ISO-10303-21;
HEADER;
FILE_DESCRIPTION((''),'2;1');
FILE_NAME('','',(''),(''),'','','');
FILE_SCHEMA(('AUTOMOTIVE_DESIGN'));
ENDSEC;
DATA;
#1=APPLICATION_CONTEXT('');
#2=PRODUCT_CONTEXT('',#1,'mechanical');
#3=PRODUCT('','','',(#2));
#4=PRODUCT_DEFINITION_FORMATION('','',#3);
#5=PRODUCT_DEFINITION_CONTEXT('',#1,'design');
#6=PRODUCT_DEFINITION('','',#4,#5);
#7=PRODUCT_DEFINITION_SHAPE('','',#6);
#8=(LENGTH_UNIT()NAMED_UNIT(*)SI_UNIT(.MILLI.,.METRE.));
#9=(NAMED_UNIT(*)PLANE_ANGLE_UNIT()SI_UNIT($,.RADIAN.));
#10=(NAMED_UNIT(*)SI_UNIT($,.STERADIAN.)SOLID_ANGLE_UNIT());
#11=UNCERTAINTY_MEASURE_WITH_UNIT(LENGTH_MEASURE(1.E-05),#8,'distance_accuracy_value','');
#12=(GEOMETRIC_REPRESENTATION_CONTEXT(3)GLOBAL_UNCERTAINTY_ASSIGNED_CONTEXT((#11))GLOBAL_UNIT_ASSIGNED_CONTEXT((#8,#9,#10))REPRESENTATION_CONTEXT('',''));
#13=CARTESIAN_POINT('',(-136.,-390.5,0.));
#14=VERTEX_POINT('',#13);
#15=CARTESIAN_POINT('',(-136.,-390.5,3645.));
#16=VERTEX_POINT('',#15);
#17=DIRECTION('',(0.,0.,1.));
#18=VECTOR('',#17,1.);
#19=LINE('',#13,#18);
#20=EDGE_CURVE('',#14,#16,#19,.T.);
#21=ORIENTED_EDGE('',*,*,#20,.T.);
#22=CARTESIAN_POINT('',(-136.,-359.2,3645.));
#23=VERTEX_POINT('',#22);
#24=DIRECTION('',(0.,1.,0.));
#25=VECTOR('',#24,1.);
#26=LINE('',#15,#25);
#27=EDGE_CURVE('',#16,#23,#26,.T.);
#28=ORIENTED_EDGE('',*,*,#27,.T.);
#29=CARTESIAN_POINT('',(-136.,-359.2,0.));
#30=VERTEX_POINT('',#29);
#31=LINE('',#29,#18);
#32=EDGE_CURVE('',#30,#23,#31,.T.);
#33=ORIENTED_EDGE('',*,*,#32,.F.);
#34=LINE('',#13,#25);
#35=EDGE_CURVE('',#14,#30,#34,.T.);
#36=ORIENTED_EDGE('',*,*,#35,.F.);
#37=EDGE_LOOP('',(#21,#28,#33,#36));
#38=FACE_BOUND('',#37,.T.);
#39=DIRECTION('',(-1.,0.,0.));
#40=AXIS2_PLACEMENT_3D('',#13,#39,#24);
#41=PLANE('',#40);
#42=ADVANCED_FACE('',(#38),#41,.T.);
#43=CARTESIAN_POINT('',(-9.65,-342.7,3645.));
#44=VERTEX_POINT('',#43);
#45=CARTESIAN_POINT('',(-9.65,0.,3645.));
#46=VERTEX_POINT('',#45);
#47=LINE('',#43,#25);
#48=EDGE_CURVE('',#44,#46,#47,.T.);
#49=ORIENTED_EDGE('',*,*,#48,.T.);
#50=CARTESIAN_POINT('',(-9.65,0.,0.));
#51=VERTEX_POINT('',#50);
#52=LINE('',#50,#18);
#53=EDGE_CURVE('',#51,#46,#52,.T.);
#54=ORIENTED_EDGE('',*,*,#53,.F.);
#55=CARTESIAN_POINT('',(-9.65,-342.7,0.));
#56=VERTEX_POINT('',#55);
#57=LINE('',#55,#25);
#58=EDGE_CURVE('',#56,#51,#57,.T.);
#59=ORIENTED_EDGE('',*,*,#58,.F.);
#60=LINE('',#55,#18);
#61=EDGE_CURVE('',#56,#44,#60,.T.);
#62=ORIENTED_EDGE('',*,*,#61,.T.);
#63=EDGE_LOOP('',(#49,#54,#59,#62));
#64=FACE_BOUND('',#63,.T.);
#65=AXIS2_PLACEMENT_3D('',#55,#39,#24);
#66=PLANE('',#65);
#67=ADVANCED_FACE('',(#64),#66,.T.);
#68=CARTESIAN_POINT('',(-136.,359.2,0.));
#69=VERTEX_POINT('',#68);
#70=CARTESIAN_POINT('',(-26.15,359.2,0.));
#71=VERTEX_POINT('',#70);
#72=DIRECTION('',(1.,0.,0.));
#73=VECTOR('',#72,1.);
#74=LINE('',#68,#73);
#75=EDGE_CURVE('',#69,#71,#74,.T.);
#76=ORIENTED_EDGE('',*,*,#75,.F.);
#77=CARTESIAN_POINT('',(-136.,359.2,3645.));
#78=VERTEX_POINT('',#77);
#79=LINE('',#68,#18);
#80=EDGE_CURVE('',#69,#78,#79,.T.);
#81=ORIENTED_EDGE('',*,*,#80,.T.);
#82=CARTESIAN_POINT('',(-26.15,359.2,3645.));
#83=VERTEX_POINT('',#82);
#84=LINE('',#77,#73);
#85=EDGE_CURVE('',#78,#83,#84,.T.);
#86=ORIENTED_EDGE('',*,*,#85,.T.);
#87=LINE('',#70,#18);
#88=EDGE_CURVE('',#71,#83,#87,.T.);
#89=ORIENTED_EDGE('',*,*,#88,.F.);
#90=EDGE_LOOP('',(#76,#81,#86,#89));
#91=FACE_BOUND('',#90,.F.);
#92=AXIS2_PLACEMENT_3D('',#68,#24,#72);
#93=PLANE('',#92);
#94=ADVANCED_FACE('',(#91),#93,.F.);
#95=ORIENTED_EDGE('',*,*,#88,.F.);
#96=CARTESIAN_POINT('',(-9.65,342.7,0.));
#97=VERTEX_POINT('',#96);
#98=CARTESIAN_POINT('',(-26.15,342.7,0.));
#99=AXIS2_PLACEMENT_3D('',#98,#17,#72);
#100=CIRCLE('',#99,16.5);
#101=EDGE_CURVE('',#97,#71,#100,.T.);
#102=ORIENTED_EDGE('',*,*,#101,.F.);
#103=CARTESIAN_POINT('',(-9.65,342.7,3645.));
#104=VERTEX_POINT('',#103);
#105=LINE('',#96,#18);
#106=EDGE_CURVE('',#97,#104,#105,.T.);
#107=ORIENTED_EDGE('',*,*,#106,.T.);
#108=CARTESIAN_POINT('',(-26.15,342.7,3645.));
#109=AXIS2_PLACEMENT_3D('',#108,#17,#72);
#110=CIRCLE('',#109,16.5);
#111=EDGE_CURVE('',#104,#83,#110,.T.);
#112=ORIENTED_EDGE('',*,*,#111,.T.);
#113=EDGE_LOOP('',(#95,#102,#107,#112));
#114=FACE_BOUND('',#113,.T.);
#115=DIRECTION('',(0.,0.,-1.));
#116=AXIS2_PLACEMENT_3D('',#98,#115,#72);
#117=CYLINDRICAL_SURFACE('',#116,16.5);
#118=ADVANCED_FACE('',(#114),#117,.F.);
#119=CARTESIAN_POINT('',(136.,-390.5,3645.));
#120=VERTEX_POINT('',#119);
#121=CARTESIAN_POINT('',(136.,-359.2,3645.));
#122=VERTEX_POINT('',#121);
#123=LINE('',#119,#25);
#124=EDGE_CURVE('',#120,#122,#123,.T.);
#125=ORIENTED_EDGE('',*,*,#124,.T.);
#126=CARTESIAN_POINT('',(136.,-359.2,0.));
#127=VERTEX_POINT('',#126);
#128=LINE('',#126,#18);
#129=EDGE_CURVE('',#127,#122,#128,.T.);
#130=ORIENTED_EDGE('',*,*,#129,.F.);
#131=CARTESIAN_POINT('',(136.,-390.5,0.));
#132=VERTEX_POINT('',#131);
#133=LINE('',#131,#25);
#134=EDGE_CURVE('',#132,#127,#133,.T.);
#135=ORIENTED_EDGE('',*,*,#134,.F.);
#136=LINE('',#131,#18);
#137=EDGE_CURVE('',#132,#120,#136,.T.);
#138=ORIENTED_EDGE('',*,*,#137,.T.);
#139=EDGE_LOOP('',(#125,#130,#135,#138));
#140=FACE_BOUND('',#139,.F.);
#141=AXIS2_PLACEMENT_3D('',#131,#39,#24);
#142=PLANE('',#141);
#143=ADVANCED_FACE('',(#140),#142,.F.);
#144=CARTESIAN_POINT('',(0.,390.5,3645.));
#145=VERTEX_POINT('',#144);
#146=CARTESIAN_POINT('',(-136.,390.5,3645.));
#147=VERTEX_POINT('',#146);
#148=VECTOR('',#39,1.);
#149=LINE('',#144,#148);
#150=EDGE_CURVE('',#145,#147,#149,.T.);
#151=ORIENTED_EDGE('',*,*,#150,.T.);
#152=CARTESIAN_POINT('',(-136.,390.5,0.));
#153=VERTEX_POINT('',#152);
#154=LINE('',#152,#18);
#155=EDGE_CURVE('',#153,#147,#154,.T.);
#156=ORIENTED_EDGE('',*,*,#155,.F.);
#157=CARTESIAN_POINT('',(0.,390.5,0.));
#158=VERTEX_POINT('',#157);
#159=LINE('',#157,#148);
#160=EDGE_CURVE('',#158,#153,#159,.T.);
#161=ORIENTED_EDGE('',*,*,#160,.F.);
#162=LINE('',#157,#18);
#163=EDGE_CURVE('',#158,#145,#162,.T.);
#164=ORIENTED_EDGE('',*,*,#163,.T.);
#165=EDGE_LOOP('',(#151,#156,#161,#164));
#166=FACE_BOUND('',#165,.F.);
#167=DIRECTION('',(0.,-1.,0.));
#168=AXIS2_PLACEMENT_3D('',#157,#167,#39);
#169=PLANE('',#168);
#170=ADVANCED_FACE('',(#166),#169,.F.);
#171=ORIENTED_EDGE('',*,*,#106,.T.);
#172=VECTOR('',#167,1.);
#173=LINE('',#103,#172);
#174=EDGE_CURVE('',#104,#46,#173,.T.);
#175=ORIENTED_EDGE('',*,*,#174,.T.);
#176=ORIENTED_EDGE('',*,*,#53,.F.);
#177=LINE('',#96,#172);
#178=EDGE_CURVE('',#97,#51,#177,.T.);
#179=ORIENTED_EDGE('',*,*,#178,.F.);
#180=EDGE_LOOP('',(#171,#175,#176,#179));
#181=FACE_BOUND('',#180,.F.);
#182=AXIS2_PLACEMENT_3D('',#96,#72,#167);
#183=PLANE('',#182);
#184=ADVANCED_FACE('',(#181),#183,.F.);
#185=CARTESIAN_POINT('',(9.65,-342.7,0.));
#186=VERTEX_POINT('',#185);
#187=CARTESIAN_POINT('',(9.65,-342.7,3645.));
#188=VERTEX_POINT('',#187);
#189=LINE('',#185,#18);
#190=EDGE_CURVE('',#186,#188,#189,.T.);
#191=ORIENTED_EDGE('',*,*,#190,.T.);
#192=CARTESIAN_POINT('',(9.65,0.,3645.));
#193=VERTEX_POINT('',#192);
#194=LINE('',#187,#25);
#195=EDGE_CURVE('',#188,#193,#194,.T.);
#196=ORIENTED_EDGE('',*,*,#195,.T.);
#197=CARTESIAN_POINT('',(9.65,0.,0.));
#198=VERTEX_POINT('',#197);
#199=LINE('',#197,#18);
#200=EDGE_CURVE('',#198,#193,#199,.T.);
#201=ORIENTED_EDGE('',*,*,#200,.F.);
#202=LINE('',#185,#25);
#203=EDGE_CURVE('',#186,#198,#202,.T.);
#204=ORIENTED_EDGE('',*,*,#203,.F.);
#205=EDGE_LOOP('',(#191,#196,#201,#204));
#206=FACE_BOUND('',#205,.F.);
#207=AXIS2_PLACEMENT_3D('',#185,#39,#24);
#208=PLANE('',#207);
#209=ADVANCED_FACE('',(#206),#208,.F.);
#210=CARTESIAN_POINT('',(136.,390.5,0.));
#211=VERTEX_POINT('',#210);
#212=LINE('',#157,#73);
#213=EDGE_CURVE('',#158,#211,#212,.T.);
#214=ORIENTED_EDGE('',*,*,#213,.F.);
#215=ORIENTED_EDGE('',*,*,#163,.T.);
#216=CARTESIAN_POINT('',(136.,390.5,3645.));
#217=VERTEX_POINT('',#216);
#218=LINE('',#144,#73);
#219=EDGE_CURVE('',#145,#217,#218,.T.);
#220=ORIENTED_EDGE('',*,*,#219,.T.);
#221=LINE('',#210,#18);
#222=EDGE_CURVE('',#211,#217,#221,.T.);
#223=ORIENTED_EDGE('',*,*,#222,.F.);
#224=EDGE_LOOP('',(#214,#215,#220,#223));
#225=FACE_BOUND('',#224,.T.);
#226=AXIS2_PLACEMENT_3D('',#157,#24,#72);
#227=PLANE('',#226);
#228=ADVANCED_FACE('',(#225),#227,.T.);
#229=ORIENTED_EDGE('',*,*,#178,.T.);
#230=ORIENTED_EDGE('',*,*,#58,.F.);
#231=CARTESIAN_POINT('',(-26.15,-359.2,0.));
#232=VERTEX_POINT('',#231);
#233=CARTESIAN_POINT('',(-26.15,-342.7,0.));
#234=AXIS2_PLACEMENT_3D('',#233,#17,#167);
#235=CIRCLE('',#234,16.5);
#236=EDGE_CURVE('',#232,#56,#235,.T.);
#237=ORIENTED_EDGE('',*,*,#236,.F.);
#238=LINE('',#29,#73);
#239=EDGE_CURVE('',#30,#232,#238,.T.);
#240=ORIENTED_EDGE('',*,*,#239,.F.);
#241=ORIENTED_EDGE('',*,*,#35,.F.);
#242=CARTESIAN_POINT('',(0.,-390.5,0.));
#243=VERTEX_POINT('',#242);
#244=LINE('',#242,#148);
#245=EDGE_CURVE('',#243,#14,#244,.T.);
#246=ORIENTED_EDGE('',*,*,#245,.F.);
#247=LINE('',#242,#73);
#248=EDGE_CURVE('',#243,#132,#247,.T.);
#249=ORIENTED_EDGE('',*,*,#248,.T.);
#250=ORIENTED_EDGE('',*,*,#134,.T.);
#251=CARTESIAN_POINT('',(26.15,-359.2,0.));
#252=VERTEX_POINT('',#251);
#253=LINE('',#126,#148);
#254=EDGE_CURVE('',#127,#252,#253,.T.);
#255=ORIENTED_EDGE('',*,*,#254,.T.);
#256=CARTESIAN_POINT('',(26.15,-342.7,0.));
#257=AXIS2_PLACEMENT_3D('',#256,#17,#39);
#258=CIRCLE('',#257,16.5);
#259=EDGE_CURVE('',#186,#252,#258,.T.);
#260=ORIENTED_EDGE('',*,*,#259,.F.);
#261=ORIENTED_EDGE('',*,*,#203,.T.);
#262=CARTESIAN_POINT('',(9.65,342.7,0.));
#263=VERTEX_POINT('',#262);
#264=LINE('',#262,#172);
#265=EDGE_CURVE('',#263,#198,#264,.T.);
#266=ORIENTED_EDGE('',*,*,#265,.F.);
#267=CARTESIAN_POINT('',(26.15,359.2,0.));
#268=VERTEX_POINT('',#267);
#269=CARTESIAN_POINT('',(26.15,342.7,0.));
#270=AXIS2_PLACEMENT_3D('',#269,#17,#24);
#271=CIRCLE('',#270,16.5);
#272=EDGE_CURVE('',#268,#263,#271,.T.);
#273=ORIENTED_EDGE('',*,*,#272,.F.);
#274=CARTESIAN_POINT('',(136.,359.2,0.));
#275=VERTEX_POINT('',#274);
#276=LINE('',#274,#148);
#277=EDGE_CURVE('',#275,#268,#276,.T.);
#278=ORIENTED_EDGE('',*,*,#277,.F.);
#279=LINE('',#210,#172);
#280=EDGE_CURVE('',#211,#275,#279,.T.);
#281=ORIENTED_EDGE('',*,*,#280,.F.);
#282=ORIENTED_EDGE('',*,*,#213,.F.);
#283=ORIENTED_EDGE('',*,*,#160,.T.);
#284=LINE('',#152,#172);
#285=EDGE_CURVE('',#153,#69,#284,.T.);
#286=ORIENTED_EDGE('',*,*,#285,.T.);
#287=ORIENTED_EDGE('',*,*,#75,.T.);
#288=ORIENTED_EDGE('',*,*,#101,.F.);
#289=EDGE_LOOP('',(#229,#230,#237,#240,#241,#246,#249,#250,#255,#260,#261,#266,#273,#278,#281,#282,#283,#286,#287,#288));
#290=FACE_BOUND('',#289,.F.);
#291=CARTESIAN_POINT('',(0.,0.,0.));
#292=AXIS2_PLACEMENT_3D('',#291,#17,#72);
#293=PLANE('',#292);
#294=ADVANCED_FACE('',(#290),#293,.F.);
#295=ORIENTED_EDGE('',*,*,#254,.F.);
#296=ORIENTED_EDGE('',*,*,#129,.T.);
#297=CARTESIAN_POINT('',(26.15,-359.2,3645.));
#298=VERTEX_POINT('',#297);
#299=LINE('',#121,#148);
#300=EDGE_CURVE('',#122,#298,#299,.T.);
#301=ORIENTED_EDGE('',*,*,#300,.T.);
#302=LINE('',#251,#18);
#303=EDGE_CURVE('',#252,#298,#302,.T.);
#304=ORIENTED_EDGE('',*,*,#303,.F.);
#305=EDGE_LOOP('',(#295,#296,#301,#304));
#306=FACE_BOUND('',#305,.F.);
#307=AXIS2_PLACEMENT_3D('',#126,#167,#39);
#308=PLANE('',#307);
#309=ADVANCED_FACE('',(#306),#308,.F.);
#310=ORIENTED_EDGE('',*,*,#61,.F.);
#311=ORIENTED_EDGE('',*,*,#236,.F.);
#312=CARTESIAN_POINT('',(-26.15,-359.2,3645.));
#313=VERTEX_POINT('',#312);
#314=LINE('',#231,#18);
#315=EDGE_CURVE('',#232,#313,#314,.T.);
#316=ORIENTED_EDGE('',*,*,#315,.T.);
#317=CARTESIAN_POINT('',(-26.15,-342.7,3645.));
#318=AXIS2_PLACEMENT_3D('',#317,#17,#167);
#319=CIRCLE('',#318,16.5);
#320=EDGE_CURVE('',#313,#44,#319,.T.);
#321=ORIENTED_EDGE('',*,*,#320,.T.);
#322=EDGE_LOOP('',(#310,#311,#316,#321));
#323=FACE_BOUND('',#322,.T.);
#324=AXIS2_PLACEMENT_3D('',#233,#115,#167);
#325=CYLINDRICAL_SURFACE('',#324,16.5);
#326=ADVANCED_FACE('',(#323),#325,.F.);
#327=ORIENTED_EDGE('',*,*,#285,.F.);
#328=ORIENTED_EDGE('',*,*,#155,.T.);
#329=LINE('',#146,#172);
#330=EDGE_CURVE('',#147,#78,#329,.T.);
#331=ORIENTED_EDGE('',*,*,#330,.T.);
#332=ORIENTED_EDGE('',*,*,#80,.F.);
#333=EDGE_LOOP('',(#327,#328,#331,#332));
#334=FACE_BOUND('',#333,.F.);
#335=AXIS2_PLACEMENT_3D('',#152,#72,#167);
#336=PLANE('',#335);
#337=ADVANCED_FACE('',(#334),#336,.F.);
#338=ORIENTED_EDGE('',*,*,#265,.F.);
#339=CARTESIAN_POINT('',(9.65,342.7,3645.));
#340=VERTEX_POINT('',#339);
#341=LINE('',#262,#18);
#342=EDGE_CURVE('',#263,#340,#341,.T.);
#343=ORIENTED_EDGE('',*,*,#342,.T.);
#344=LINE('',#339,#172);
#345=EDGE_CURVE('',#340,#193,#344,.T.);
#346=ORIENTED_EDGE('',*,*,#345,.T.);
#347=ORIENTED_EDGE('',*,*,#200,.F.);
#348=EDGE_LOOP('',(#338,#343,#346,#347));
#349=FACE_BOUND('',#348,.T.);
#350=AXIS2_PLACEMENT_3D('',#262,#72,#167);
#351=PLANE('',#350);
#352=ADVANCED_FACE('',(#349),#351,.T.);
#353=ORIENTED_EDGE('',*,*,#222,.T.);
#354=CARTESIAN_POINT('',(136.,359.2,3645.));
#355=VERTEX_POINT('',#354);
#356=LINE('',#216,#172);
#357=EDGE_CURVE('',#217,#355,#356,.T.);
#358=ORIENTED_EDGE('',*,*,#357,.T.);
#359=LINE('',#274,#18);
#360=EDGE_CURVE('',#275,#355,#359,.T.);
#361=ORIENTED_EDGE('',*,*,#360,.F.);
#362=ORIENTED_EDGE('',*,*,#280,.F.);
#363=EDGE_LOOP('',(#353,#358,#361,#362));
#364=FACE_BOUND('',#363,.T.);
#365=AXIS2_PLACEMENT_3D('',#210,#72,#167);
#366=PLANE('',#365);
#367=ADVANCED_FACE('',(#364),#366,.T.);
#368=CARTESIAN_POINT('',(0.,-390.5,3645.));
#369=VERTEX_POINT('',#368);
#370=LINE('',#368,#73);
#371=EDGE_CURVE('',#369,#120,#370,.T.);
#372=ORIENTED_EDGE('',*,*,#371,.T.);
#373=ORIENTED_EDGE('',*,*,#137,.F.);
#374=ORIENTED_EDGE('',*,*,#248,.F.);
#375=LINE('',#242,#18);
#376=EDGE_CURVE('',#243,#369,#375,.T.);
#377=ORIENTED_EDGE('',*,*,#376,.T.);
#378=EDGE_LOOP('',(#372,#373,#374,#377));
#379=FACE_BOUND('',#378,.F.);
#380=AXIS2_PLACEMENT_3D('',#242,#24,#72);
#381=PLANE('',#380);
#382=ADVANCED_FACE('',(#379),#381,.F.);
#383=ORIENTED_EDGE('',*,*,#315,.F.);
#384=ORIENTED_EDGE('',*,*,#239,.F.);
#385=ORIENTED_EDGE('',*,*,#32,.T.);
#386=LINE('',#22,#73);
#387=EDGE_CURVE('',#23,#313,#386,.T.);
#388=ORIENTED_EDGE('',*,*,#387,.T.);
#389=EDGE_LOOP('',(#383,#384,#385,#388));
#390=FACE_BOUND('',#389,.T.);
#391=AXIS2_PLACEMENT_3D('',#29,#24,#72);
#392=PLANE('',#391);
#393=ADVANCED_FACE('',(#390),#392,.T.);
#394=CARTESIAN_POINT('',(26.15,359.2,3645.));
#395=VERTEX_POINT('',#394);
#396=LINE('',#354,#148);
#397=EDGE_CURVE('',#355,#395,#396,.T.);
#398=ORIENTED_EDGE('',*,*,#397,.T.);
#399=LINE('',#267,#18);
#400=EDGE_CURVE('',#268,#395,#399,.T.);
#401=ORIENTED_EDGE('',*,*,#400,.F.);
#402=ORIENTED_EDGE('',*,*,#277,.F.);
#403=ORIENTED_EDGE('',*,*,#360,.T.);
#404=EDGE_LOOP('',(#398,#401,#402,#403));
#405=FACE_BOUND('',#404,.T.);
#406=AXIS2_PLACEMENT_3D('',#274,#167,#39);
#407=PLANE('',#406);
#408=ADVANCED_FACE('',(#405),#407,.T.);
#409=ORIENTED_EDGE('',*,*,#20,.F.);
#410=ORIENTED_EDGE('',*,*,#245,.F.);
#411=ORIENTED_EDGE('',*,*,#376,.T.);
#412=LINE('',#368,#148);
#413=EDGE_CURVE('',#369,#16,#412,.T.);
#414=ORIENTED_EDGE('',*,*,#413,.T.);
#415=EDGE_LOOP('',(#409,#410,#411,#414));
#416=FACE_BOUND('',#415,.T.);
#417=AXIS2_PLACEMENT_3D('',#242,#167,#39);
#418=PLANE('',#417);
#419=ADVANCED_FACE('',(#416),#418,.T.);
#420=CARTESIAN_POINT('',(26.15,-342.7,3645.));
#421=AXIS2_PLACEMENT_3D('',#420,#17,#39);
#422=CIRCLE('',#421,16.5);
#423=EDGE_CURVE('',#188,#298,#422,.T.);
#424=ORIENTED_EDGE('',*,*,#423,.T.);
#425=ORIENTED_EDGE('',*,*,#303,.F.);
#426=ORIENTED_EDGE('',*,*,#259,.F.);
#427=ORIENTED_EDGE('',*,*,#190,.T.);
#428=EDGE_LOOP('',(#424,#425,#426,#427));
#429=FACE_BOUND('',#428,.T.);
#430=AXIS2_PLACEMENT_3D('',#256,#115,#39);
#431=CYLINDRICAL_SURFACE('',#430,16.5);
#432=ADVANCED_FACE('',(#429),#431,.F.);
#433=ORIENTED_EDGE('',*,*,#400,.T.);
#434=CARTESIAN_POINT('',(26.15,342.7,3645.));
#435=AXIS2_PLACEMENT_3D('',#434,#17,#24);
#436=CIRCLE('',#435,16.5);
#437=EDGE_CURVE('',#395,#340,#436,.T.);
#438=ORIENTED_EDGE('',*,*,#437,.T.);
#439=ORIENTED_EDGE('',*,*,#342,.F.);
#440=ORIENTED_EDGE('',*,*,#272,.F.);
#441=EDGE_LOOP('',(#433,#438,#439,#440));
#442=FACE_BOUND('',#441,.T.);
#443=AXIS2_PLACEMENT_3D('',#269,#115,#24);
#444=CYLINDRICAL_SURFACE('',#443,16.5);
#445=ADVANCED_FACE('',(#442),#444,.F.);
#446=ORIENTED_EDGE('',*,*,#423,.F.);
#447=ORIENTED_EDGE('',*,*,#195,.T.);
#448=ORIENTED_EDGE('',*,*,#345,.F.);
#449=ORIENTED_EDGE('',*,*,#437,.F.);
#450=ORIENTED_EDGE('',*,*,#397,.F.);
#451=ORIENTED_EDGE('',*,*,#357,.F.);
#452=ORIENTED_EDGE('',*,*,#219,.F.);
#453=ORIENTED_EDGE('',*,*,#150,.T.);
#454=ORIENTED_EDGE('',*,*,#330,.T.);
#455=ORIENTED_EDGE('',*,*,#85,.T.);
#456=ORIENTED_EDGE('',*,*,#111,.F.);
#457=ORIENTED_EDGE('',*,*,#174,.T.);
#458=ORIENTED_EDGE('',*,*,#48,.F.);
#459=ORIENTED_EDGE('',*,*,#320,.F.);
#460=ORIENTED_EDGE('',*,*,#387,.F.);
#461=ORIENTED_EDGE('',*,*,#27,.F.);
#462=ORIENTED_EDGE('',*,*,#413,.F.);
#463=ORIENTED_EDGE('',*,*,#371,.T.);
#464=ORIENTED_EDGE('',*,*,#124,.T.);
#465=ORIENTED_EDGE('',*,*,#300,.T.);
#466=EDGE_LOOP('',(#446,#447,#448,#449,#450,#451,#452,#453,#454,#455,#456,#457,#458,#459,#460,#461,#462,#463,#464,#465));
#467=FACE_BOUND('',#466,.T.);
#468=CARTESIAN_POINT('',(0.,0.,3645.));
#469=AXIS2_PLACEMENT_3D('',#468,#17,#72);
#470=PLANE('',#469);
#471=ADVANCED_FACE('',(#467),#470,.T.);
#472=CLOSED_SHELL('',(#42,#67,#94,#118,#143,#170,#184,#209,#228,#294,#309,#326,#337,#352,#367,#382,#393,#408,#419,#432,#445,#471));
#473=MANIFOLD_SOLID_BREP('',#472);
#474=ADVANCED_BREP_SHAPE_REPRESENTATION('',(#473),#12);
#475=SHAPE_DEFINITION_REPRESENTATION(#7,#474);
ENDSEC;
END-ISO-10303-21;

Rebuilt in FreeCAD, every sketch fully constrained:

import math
import FreeCAD as App
import Part
import Sketcher
Q = App.Units.Quantity

doc = App.newDocument("Part")
body = doc.addObject("PartDesign::Body", "Body")

sketch1 = body.newObject("Sketcher::SketchObject", "Sketch")
sketch1.AttachmentSupport = (doc.getObject("XY_Plane"), [""])
sketch1.MapMode = "FlatFace"
sketch1.addGeometry([
    Part.LineSegment(App.Vector(-136, -359, 0), App.Vector(-136, -390, 0)),
    Part.LineSegment(App.Vector(-136, -390, 0), App.Vector(136, -390, 0)),
    Part.LineSegment(App.Vector(136, -390, 0), App.Vector(136, -359, 0)),
    Part.LineSegment(App.Vector(136, -359, 0), App.Vector(26, -359, 0)),
    Part.ArcOfCircle(Part.Circle(App.Vector(26, -343, 0), App.Vector(0, 0, 1), 16), math.radians(180), math.radians(270)),
    Part.LineSegment(App.Vector(10, -343, 0), App.Vector(10, 343, 0)),
    Part.ArcOfCircle(Part.Circle(App.Vector(26, 343, 0), App.Vector(0, 0, 1), 16), math.radians(90), math.radians(180)),
    Part.LineSegment(App.Vector(26, 359, 0), App.Vector(136, 359, 0)),
    Part.LineSegment(App.Vector(136, 359, 0), App.Vector(136, 390, 0)),
    Part.LineSegment(App.Vector(136, 390, 0), App.Vector(-136, 390, 0)),
    Part.LineSegment(App.Vector(-136, 390, 0), App.Vector(-136, 359, 0)),
    Part.LineSegment(App.Vector(-136, 359, 0), App.Vector(-26, 359, 0)),
    Part.ArcOfCircle(Part.Circle(App.Vector(-26, 343, 0), App.Vector(0, 0, 1), 16), math.radians(0), math.radians(90)),
    Part.LineSegment(App.Vector(-10, 343, 0), App.Vector(-10, -343, 0)),
    Part.ArcOfCircle(Part.Circle(App.Vector(-26, -343, 0), App.Vector(0, 0, 1), 16), math.radians(-90), math.radians(0)),
    Part.LineSegment(App.Vector(-26, -359, 0), App.Vector(-136, -359, 0)),
], False)
sketch1.addConstraint([
    Sketcher.Constraint("Coincident", 0, 2, 1, 1),
    Sketcher.Constraint("Coincident", 1, 2, 2, 1),
    Sketcher.Constraint("Coincident", 2, 2, 3, 1),
    Sketcher.Constraint("Tangent", 3, 2, 4, 2),
    Sketcher.Constraint("Tangent", 4, 1, 5, 1),
    Sketcher.Constraint("Tangent", 5, 2, 6, 2),
    Sketcher.Constraint("Tangent", 6, 1, 7, 1),
    Sketcher.Constraint("Coincident", 7, 2, 8, 1),
    Sketcher.Constraint("Coincident", 8, 2, 9, 1),
    Sketcher.Constraint("Coincident", 9, 2, 10, 1),
    Sketcher.Constraint("Coincident", 10, 2, 11, 1),
    Sketcher.Constraint("Tangent", 11, 2, 12, 2),
    Sketcher.Constraint("Tangent", 12, 1, 13, 1),
    Sketcher.Constraint("Tangent", 13, 2, 14, 2),
    Sketcher.Constraint("Tangent", 14, 1, 15, 1),
    Sketcher.Constraint("Coincident", 15, 2, 0, 1),
    Sketcher.Constraint("Vertical", 0),
    Sketcher.Constraint("Horizontal", 1),
    Sketcher.Constraint("Vertical", 2),
    Sketcher.Constraint("Horizontal", 3),
    Sketcher.Constraint("Vertical", 5),
    Sketcher.Constraint("Horizontal", 7),
    Sketcher.Constraint("Vertical", 8),
    Sketcher.Constraint("Horizontal", 9),
    Sketcher.Constraint("Vertical", 10),
    Sketcher.Constraint("Horizontal", 11),
    Sketcher.Constraint("Vertical", 13),
    Sketcher.Constraint("Horizontal", 15),
    Sketcher.Constraint("Equal", 4, 6),
    Sketcher.Constraint("Equal", 6, 12),
    Sketcher.Constraint("Equal", 12, 14),
    Sketcher.Constraint("Symmetric", 4, 3, 12, 3, -1, 1),
    Sketcher.Constraint("Symmetric", 0, 2, 8, 2, -1, 1),
    Sketcher.Constraint("Symmetric", 7, 2, 10, 2, -2),
    Sketcher.Constraint("Symmetric", 2, 2, 15, 2, -2),
    Sketcher.Constraint("Radius", 4, Q("16.5 mm")),
    Sketcher.Constraint("DistanceY", 0, 2, 0, 1, Q("31.3 mm")),
    Sketcher.Constraint("DistanceX", 0, 2, -1, 1, Q("136 mm")),
    Sketcher.Constraint("DistanceY", 0, 2, -1, 1, Q("390.5 mm")),
    Sketcher.Constraint("DistanceX", -1, 1, 4, 1, Q("9.65 mm")),
])
pad1 = body.newObject("PartDesign::Pad", "Pad")
pad1.Profile = sketch1
pad1.Length = 3645

doc.recompute()
